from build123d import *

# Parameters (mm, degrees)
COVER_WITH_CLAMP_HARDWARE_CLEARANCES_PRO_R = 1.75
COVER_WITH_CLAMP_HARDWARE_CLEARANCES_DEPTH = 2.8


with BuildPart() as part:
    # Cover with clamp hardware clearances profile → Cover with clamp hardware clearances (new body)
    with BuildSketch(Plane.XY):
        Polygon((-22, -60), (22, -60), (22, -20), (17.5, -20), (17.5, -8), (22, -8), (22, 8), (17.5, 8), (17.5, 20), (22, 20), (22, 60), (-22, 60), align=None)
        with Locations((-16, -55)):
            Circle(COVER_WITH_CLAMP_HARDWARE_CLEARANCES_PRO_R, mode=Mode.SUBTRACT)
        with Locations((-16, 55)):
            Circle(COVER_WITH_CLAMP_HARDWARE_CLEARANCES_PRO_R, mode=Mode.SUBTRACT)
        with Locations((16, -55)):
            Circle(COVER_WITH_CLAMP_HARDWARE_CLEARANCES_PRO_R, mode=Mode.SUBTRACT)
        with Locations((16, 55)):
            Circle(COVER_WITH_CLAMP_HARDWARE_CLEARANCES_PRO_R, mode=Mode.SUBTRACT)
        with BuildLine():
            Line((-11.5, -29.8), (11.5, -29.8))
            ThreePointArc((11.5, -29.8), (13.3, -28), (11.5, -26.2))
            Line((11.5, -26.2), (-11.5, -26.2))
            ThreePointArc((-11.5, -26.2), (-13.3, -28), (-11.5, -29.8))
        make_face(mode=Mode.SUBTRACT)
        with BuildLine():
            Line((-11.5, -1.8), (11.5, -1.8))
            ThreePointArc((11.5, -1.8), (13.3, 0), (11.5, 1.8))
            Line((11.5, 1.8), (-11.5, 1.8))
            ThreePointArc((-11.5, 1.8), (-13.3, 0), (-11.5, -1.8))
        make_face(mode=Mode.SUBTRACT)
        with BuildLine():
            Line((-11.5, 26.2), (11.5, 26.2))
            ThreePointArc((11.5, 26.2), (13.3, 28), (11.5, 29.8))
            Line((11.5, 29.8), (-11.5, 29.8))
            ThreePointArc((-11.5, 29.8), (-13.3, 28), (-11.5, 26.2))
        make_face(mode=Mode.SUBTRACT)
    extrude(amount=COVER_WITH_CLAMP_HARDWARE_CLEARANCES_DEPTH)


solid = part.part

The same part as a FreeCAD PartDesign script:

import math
import FreeCAD as App
import Part
import Sketcher

V = App.Vector
Q = App.Units.Quantity


def add_polygon(sketch, points):
    """Adds a closed chain of lines whose ends are joined by coincident constraints."""
    first, n = sketch.GeometryCount, len(points)
    for a, b in zip(points, points[1:] + points[:1]):
        sketch.addGeometry(Part.LineSegment(App.Vector(*a, 0), App.Vector(*b, 0)), False)
    for i in range(n):
        sketch.addConstraint(Sketcher.Constraint("Coincident", first + i, 2, first + (i + 1) % n, 1))

doc = App.newDocument("Part")
body = doc.addObject("PartDesign::Body", "Body")

sketch1 = doc.addObject("Sketcher::SketchObject", "Sketch")
body.addObject(sketch1)
sketch1.AttachmentSupport = (doc.XY_Plane, [""])
sketch1.MapMode = "FlatFace"
add_polygon(sketch1, [(-22, -60), (22, -60), (22, -20), (17.5, -20), (17.5, -8), (22, -8), (22, 8), (17.5, 8), (17.5, 20), (22, 20), (22, 60), (-22, 60)])
sketch1.addGeometry(Part.Circle(V(-16, -55, 0), V(0, 0, 1), 1.8), False)
sketch1.addGeometry(Part.Circle(V(16, -55, 0), V(0, 0, 1), 1.8), False)
sketch1.addGeometry(Part.LineSegment(V(11.5, -29.8, 0), V(-11.5, -29.8, 0)), False)
sketch1.addGeometry(Part.ArcOfCircle(Part.Circle(V(-11.5, -28, 0), V(0, 0, 1), 1.8), math.radians(90), math.radians(270)), False)
sketch1.addGeometry(Part.LineSegment(V(-11.5, -26.2, 0), V(11.5, -26.2, 0)), False)
sketch1.addGeometry(Part.ArcOfCircle(Part.Circle(V(11.5, -28, 0), V(0, 0, 1), 1.8), math.radians(-90), math.radians(90)), False)
sketch1.addGeometry(Part.Circle(V(-16, 55, 0), V(0, 0, 1), 1.8), False)
sketch1.addGeometry(Part.LineSegment(V(11.5, -1.8, 0), V(-11.5, -1.8, 0)), False)
sketch1.addGeometry(Part.ArcOfCircle(Part.Circle(V(-11.5, 0, 0), V(0, 0, 1), 1.8), math.radians(90), math.radians(270)), False)
sketch1.addGeometry(Part.LineSegment(V(-11.5, 1.8, 0), V(11.5, 1.8, 0)), False)
sketch1.addGeometry(Part.ArcOfCircle(Part.Circle(V(11.5, 0, 0), V(0, 0, 1), 1.8), math.radians(-90), math.radians(90)), False)
sketch1.addGeometry(Part.LineSegment(V(11.5, 26.2, 0), V(-11.5, 26.2, 0)), False)
sketch1.addGeometry(Part.ArcOfCircle(Part.Circle(V(-11.5, 28, 0), V(0, 0, 1), 1.8), math.radians(90), math.radians(270)), False)
sketch1.addGeometry(Part.LineSegment(V(-11.5, 29.8, 0), V(11.5, 29.8, 0)), False)
sketch1.addGeometry(Part.ArcOfCircle(Part.Circle(V(11.5, 28, 0), V(0, 0, 1), 1.8), math.radians(-90), math.radians(90)), False)
sketch1.addGeometry(Part.Circle(V(16, 55, 0), V(0, 0, 1), 1.8), False)
sketch1.addConstraint(Sketcher.Constraint("Tangent", 14, 2, 15, 2))
sketch1.addConstraint(Sketcher.Constraint("Tangent", 15, 1, 16, 1))
sketch1.addConstraint(Sketcher.Constraint("Tangent", 16, 2, 17, 2))
sketch1.addConstraint(Sketcher.Constraint("Tangent", 17, 1, 14, 1))
sketch1.addConstraint(Sketcher.Constraint("Tangent", 19, 2, 20, 2))
sketch1.addConstraint(Sketcher.Constraint("Tangent", 20, 1, 21, 1))
sketch1.addConstraint(Sketcher.Constraint("Tangent", 21, 2, 22, 2))
sketch1.addConstraint(Sketcher.Constraint("Tangent", 22, 1, 19, 1))
sketch1.addConstraint(Sketcher.Constraint("Tangent", 23, 2, 24, 2))
sketch1.addConstraint(Sketcher.Constraint("Tangent", 24, 1, 25, 1))
sketch1.addConstraint(Sketcher.Constraint("Tangent", 25, 2, 26, 2))
sketch1.addConstraint(Sketcher.Constraint("Tangent", 26, 1, 23, 1))
sketch1.addConstraint(Sketcher.Constraint("Horizontal", 0))
sketch1.addConstraint(Sketcher.Constraint("Vertical", 1))
sketch1.addConstraint(Sketcher.Constraint("Horizontal", 2))
sketch1.addConstraint(Sketcher.Constraint("Vertical", 3))
sketch1.addConstraint(Sketcher.Constraint("Horizontal", 4))
sketch1.addConstraint(Sketcher.Constraint("Vertical", 5))
sketch1.addConstraint(Sketcher.Constraint("Horizontal", 6))
sketch1.addConstraint(Sketcher.Constraint("Vertical", 7))
sketch1.addConstraint(Sketcher.Constraint("Horizontal", 8))
sketch1.addConstraint(Sketcher.Constraint("Vertical", 9))
sketch1.addConstraint(Sketcher.Constraint("Horizontal", 10))
sketch1.addConstraint(Sketcher.Constraint("Vertical", 11))
sketch1.addConstraint(Sketcher.Constraint("Horizontal", 14))
sketch1.addConstraint(Sketcher.Constraint("Horizontal", 16))
sketch1.addConstraint(Sketcher.Constraint("Horizontal", 19))
sketch1.addConstraint(Sketcher.Constraint("Horizontal", 21))
sketch1.addConstraint(Sketcher.Constraint("Horizontal", 23))
sketch1.addConstraint(Sketcher.Constraint("Horizontal", 25))
sketch1.addConstraint(Sketcher.Constraint("Equal", 12, 13))
sketch1.addConstraint(Sketcher.Constraint("Equal", 13, 18))
sketch1.addConstraint(Sketcher.Constraint("Equal", 17, 20))
sketch1.addConstraint(Sketcher.Constraint("Equal", 22, 24))
sketch1.addConstraint(Sketcher.Constraint("Equal", 18, 27))
sketch1.addConstraint(Sketcher.Constraint("Symmetric", 13, 3, 18, 3, -1, 1))
sketch1.addConstraint(Sketcher.Constraint("Symmetric", 20, 3, 22, 3, -1, 1))
sketch1.addConstraint(Sketcher.Constraint("Symmetric", 17, 3, 24, 3, -1, 1))
sketch1.addConstraint(Sketcher.Constraint("Symmetric", 12, 3, 27, 3, -1, 1))
sketch1.addConstraint(Sketcher.Constraint("Symmetric", 0, 2, 10, 2, -1, 1))
sketch1.addConstraint(Sketcher.Constraint("Symmetric", 12, 3, 13, 3, -2))
sketch1.addConstraint(Sketcher.Constraint("Symmetric", 3, 2, 6, 2, -1))
sketch1.addConstraint(Sketcher.Constraint("Symmetric", 1, 2, 8, 2, -1))
sketch1.addConstraint(Sketcher.Constraint("Vertical", 15, 3, 20, 3))
sketch1.addConstraint(Sketcher.Constraint("Vertical", 17, 3, 22, 3))
sketch1.addConstraint(Sketcher.Constraint("Vertical", 22, 3, 26, 3))
sketch1.addConstraint(Sketcher.Constraint("Vertical", 1, 2, 4, 2))
sketch1.addConstraint(Sketcher.Constraint("Diameter", 12, Q("3.5 mm")))
sketch1.addConstraint(Sketcher.Constraint("Radius", 15, Q("1.8 mm")))
sketch1.addConstraint(Sketcher.Constraint("DistanceX", 0, 1, 0, 2, Q("44 mm")))
sketch1.addConstraint(Sketcher.Constraint("DistanceX", 14, 2, 14, 1, Q("23 mm")))
sketch1.addConstraint(Sketcher.Constraint("DistanceY", 1, 1, 1, 2, Q("40 mm")))
sketch1.addConstraint(Sketcher.Constraint("DistanceY", 3, 1, 3, 2, Q("12 mm")))
sketch1.addConstraint(Sketcher.Constraint("DistanceY", 5, 1, 5, 2, Q("16 mm")))
sketch1.addConstraint(Sketcher.Constraint("DistanceX", 2, 2, 2, 1, Q("4.5 mm")))
sketch1.addConstraint(Sketcher.Constraint("DistanceX", 12, 3, -1, 1, Q("16 mm")))
sketch1.addConstraint(Sketcher.Constraint("DistanceY", 12, 3, -1, 1, Q("55 mm")))
sketch1.addConstraint(Sketcher.Constraint("DistanceY", 15, 3, -1, 1, Q("28 mm")))
pad1 = doc.addObject("PartDesign::Pad", "Pad")
body.addObject(pad1)
pad1.Profile = sketch1
pad1.Length = 2.8

doc.recompute()
